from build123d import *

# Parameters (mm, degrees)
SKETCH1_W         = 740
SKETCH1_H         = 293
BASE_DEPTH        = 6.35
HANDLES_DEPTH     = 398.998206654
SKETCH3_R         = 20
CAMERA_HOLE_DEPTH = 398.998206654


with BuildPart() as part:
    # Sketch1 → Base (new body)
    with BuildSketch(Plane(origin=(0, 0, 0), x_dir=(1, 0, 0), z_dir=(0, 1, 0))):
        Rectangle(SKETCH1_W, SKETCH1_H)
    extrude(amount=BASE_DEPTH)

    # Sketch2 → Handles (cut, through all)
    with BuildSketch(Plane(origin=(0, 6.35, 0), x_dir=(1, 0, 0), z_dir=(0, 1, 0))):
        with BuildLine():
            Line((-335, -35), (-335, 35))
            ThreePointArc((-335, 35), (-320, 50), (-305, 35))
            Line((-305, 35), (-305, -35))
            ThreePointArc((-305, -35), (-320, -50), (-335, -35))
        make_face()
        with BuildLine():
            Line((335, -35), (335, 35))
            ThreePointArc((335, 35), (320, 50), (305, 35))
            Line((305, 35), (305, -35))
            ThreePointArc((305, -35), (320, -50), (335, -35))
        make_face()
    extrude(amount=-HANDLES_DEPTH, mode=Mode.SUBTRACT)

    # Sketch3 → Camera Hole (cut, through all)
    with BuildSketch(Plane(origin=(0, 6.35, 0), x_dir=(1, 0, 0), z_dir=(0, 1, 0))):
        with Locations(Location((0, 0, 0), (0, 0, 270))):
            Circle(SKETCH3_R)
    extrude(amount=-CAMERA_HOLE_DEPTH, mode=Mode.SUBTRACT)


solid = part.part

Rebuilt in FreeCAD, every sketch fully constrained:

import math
import FreeCAD as App
import Part
import Sketcher
Q = App.Units.Quantity


def add_polygon(sketch, points):
    """Adds a closed chain of lines whose ends are joined by coincident constraints."""
    first, n = sketch.GeometryCount, len(points)
    for a, b in zip(points, points[1:] + points[:1]):
        sketch.addGeometry(Part.LineSegment(App.Vector(*a, 0), App.Vector(*b, 0)), False)
    for i in range(n):
        sketch.addConstraint(Sketcher.Constraint("Coincident", first + i, 2, first + (i + 1) % n, 1))

doc = App.newDocument("Part")
body = doc.addObject("PartDesign::Body", "Body")

sketch1 = body.newObject("Sketcher::SketchObject", "Sketch")
sketch1.AttachmentSupport = (doc.getObject("XZ_Plane"), [""])
sketch1.MapMode = "FlatFace"
add_polygon(sketch1, [(-370, -146.5), (-370, 146.5), (370, 146.5), (370, -146.5)])
sketch1.addConstraint(Sketcher.Constraint("Vertical", 0))
sketch1.addConstraint(Sketcher.Constraint("Horizontal", 1))
sketch1.addConstraint(Sketcher.Constraint("Vertical", 2))
sketch1.addConstraint(Sketcher.Constraint("Horizontal", 3))
sketch1.addConstraint(Sketcher.Constraint("Symmetric", 0, 2, 2, 2, -1, 1))
sketch1.addConstraint(Sketcher.Constraint("DistanceX", 1, 1, 1, 2, Q("740 mm")))
sketch1.addConstraint(Sketcher.Constraint("DistanceY", 0, 1, 0, 2, Q("293 mm")))
pad1 = body.newObject("PartDesign::Pad", "Pad")
pad1.Profile = sketch1
pad1.Length = 6.35
pad1.Reversed = True

sketch2 = body.newObject("Sketcher::SketchObject", "Sketch001")
sketch2.AttachmentSupport = (doc.getObject("XZ_Plane"), [""])
sketch2.MapMode = "FlatFace"
sketch2.AttachmentOffset = App.Placement(App.Vector(0, 0, -6.35), App.Rotation())
sketch2.addGeometry(Part.LineSegment(App.Vector(-335, -35, 0), App.Vector(-335, 35, 0)), False)
sketch2.addGeometry(Part.ArcOfCircle(Part.Circle(App.Vector(-320, 35, 0), App.Vector(0, 0, 1), 15), math.radians(0), math.radians(180)), False)
sketch2.addGeometry(Part.LineSegment(App.Vector(-305, 35, 0), App.Vector(-305, -35, 0)), False)
sketch2.addGeometry(Part.ArcOfCircle(Part.Circle(App.Vector(-320, -35, 0), App.Vector(0, 0, 1), 15), math.radians(180), math.radians(360)), False)
sketch2.addGeometry(Part.LineSegment(App.Vector(335, 35, 0), App.Vector(335, -35, 0)), False)
sketch2.addGeometry(Part.ArcOfCircle(Part.Circle(App.Vector(320, -35, 0), App.Vector(0, 0, 1), 15), math.radians(180), math.radians(360)), False)
sketch2.addGeometry(Part.LineSegment(App.Vector(305, -35, 0), App.Vector(305, 35, 0)), False)
sketch2.addGeometry(Part.ArcOfCircle(Part.Circle(App.Vector(320, 35, 0), App.Vector(0, 0, 1), 15), math.radians(0), math.radians(180)), False)
sketch2.addConstraint(Sketcher.Constraint("Tangent", 0, 2, 1, 2))
sketch2.addConstraint(Sketcher.Constraint("Tangent", 1, 1, 2, 1))
sketch2.addConstraint(Sketcher.Constraint("Tangent", 2, 2, 3, 2))
sketch2.addConstraint(Sketcher.Constraint("Tangent", 3, 1, 0, 1))
sketch2.addConstraint(Sketcher.Constraint("Tangent", 4, 2, 5, 2))
sketch2.addConstraint(Sketcher.Constraint("Tangent", 5, 1, 6, 1))
sketch2.addConstraint(Sketcher.Constraint("Tangent", 6, 2, 7, 2))
sketch2.addConstraint(Sketcher.Constraint("Tangent", 7, 1, 4, 1))
sketch2.addConstraint(Sketcher.Constraint("Vertical", 0))
sketch2.addConstraint(Sketcher.Constraint("Vertical", 2))
sketch2.addConstraint(Sketcher.Constraint("Vertical", 4))
sketch2.addConstraint(Sketcher.Constraint("Vertical", 6))
sketch2.addConstraint(Sketcher.Constraint("Equal", 3, 5))
sketch2.addConstraint(Sketcher.Constraint("Symmetric", 1, 3, 5, 3, -1, 1))
sketch2.addConstraint(Sketcher.Constraint("Horizontal", 3, 3, 5, 3))
sketch2.addConstraint(Sketcher.Constraint("Horizontal", 1, 3, 7, 3))
sketch2.addConstraint(Sketcher.Constraint("Radius", 1, Q("15 mm")))
sketch2.addConstraint(Sketcher.Constraint("DistanceY", 0, 1, 0, 2, Q("70 mm")))
sketch2.addConstraint(Sketcher.Constraint("DistanceX", 1, 3, -1, 1, Q("320 mm")))
pocket1 = body.newObject("PartDesign::Pocket", "Pocket")
pocket1.Profile = sketch2
pocket1.Type = "ThroughAll"
pocket1.Reversed = True

sketch3 = body.newObject("Sketcher::SketchObject", "Sketch002")
sketch3.AttachmentSupport = (doc.getObject("XZ_Plane"), [""])
sketch3.MapMode = "FlatFace"
sketch3.AttachmentOffset = App.Placement(App.Vector(0, 0, -6.35), App.Rotation())
sketch3.addGeometry(Part.Circle(App.Vector(0, 0, 0), App.Vector(0, 0, 1), 20), False)
sketch3.addConstraint(Sketcher.Constraint("Coincident", 0, 3, -1, 1))
sketch3.addConstraint(Sketcher.Constraint("Diameter", 0, Q("40 mm")))
pocket2 = body.newObject("PartDesign::Pocket", "Pocket001")
pocket2.Profile = sketch3
pocket2.Type = "ThroughAll"
pocket2.Reversed = True

doc.recompute()
